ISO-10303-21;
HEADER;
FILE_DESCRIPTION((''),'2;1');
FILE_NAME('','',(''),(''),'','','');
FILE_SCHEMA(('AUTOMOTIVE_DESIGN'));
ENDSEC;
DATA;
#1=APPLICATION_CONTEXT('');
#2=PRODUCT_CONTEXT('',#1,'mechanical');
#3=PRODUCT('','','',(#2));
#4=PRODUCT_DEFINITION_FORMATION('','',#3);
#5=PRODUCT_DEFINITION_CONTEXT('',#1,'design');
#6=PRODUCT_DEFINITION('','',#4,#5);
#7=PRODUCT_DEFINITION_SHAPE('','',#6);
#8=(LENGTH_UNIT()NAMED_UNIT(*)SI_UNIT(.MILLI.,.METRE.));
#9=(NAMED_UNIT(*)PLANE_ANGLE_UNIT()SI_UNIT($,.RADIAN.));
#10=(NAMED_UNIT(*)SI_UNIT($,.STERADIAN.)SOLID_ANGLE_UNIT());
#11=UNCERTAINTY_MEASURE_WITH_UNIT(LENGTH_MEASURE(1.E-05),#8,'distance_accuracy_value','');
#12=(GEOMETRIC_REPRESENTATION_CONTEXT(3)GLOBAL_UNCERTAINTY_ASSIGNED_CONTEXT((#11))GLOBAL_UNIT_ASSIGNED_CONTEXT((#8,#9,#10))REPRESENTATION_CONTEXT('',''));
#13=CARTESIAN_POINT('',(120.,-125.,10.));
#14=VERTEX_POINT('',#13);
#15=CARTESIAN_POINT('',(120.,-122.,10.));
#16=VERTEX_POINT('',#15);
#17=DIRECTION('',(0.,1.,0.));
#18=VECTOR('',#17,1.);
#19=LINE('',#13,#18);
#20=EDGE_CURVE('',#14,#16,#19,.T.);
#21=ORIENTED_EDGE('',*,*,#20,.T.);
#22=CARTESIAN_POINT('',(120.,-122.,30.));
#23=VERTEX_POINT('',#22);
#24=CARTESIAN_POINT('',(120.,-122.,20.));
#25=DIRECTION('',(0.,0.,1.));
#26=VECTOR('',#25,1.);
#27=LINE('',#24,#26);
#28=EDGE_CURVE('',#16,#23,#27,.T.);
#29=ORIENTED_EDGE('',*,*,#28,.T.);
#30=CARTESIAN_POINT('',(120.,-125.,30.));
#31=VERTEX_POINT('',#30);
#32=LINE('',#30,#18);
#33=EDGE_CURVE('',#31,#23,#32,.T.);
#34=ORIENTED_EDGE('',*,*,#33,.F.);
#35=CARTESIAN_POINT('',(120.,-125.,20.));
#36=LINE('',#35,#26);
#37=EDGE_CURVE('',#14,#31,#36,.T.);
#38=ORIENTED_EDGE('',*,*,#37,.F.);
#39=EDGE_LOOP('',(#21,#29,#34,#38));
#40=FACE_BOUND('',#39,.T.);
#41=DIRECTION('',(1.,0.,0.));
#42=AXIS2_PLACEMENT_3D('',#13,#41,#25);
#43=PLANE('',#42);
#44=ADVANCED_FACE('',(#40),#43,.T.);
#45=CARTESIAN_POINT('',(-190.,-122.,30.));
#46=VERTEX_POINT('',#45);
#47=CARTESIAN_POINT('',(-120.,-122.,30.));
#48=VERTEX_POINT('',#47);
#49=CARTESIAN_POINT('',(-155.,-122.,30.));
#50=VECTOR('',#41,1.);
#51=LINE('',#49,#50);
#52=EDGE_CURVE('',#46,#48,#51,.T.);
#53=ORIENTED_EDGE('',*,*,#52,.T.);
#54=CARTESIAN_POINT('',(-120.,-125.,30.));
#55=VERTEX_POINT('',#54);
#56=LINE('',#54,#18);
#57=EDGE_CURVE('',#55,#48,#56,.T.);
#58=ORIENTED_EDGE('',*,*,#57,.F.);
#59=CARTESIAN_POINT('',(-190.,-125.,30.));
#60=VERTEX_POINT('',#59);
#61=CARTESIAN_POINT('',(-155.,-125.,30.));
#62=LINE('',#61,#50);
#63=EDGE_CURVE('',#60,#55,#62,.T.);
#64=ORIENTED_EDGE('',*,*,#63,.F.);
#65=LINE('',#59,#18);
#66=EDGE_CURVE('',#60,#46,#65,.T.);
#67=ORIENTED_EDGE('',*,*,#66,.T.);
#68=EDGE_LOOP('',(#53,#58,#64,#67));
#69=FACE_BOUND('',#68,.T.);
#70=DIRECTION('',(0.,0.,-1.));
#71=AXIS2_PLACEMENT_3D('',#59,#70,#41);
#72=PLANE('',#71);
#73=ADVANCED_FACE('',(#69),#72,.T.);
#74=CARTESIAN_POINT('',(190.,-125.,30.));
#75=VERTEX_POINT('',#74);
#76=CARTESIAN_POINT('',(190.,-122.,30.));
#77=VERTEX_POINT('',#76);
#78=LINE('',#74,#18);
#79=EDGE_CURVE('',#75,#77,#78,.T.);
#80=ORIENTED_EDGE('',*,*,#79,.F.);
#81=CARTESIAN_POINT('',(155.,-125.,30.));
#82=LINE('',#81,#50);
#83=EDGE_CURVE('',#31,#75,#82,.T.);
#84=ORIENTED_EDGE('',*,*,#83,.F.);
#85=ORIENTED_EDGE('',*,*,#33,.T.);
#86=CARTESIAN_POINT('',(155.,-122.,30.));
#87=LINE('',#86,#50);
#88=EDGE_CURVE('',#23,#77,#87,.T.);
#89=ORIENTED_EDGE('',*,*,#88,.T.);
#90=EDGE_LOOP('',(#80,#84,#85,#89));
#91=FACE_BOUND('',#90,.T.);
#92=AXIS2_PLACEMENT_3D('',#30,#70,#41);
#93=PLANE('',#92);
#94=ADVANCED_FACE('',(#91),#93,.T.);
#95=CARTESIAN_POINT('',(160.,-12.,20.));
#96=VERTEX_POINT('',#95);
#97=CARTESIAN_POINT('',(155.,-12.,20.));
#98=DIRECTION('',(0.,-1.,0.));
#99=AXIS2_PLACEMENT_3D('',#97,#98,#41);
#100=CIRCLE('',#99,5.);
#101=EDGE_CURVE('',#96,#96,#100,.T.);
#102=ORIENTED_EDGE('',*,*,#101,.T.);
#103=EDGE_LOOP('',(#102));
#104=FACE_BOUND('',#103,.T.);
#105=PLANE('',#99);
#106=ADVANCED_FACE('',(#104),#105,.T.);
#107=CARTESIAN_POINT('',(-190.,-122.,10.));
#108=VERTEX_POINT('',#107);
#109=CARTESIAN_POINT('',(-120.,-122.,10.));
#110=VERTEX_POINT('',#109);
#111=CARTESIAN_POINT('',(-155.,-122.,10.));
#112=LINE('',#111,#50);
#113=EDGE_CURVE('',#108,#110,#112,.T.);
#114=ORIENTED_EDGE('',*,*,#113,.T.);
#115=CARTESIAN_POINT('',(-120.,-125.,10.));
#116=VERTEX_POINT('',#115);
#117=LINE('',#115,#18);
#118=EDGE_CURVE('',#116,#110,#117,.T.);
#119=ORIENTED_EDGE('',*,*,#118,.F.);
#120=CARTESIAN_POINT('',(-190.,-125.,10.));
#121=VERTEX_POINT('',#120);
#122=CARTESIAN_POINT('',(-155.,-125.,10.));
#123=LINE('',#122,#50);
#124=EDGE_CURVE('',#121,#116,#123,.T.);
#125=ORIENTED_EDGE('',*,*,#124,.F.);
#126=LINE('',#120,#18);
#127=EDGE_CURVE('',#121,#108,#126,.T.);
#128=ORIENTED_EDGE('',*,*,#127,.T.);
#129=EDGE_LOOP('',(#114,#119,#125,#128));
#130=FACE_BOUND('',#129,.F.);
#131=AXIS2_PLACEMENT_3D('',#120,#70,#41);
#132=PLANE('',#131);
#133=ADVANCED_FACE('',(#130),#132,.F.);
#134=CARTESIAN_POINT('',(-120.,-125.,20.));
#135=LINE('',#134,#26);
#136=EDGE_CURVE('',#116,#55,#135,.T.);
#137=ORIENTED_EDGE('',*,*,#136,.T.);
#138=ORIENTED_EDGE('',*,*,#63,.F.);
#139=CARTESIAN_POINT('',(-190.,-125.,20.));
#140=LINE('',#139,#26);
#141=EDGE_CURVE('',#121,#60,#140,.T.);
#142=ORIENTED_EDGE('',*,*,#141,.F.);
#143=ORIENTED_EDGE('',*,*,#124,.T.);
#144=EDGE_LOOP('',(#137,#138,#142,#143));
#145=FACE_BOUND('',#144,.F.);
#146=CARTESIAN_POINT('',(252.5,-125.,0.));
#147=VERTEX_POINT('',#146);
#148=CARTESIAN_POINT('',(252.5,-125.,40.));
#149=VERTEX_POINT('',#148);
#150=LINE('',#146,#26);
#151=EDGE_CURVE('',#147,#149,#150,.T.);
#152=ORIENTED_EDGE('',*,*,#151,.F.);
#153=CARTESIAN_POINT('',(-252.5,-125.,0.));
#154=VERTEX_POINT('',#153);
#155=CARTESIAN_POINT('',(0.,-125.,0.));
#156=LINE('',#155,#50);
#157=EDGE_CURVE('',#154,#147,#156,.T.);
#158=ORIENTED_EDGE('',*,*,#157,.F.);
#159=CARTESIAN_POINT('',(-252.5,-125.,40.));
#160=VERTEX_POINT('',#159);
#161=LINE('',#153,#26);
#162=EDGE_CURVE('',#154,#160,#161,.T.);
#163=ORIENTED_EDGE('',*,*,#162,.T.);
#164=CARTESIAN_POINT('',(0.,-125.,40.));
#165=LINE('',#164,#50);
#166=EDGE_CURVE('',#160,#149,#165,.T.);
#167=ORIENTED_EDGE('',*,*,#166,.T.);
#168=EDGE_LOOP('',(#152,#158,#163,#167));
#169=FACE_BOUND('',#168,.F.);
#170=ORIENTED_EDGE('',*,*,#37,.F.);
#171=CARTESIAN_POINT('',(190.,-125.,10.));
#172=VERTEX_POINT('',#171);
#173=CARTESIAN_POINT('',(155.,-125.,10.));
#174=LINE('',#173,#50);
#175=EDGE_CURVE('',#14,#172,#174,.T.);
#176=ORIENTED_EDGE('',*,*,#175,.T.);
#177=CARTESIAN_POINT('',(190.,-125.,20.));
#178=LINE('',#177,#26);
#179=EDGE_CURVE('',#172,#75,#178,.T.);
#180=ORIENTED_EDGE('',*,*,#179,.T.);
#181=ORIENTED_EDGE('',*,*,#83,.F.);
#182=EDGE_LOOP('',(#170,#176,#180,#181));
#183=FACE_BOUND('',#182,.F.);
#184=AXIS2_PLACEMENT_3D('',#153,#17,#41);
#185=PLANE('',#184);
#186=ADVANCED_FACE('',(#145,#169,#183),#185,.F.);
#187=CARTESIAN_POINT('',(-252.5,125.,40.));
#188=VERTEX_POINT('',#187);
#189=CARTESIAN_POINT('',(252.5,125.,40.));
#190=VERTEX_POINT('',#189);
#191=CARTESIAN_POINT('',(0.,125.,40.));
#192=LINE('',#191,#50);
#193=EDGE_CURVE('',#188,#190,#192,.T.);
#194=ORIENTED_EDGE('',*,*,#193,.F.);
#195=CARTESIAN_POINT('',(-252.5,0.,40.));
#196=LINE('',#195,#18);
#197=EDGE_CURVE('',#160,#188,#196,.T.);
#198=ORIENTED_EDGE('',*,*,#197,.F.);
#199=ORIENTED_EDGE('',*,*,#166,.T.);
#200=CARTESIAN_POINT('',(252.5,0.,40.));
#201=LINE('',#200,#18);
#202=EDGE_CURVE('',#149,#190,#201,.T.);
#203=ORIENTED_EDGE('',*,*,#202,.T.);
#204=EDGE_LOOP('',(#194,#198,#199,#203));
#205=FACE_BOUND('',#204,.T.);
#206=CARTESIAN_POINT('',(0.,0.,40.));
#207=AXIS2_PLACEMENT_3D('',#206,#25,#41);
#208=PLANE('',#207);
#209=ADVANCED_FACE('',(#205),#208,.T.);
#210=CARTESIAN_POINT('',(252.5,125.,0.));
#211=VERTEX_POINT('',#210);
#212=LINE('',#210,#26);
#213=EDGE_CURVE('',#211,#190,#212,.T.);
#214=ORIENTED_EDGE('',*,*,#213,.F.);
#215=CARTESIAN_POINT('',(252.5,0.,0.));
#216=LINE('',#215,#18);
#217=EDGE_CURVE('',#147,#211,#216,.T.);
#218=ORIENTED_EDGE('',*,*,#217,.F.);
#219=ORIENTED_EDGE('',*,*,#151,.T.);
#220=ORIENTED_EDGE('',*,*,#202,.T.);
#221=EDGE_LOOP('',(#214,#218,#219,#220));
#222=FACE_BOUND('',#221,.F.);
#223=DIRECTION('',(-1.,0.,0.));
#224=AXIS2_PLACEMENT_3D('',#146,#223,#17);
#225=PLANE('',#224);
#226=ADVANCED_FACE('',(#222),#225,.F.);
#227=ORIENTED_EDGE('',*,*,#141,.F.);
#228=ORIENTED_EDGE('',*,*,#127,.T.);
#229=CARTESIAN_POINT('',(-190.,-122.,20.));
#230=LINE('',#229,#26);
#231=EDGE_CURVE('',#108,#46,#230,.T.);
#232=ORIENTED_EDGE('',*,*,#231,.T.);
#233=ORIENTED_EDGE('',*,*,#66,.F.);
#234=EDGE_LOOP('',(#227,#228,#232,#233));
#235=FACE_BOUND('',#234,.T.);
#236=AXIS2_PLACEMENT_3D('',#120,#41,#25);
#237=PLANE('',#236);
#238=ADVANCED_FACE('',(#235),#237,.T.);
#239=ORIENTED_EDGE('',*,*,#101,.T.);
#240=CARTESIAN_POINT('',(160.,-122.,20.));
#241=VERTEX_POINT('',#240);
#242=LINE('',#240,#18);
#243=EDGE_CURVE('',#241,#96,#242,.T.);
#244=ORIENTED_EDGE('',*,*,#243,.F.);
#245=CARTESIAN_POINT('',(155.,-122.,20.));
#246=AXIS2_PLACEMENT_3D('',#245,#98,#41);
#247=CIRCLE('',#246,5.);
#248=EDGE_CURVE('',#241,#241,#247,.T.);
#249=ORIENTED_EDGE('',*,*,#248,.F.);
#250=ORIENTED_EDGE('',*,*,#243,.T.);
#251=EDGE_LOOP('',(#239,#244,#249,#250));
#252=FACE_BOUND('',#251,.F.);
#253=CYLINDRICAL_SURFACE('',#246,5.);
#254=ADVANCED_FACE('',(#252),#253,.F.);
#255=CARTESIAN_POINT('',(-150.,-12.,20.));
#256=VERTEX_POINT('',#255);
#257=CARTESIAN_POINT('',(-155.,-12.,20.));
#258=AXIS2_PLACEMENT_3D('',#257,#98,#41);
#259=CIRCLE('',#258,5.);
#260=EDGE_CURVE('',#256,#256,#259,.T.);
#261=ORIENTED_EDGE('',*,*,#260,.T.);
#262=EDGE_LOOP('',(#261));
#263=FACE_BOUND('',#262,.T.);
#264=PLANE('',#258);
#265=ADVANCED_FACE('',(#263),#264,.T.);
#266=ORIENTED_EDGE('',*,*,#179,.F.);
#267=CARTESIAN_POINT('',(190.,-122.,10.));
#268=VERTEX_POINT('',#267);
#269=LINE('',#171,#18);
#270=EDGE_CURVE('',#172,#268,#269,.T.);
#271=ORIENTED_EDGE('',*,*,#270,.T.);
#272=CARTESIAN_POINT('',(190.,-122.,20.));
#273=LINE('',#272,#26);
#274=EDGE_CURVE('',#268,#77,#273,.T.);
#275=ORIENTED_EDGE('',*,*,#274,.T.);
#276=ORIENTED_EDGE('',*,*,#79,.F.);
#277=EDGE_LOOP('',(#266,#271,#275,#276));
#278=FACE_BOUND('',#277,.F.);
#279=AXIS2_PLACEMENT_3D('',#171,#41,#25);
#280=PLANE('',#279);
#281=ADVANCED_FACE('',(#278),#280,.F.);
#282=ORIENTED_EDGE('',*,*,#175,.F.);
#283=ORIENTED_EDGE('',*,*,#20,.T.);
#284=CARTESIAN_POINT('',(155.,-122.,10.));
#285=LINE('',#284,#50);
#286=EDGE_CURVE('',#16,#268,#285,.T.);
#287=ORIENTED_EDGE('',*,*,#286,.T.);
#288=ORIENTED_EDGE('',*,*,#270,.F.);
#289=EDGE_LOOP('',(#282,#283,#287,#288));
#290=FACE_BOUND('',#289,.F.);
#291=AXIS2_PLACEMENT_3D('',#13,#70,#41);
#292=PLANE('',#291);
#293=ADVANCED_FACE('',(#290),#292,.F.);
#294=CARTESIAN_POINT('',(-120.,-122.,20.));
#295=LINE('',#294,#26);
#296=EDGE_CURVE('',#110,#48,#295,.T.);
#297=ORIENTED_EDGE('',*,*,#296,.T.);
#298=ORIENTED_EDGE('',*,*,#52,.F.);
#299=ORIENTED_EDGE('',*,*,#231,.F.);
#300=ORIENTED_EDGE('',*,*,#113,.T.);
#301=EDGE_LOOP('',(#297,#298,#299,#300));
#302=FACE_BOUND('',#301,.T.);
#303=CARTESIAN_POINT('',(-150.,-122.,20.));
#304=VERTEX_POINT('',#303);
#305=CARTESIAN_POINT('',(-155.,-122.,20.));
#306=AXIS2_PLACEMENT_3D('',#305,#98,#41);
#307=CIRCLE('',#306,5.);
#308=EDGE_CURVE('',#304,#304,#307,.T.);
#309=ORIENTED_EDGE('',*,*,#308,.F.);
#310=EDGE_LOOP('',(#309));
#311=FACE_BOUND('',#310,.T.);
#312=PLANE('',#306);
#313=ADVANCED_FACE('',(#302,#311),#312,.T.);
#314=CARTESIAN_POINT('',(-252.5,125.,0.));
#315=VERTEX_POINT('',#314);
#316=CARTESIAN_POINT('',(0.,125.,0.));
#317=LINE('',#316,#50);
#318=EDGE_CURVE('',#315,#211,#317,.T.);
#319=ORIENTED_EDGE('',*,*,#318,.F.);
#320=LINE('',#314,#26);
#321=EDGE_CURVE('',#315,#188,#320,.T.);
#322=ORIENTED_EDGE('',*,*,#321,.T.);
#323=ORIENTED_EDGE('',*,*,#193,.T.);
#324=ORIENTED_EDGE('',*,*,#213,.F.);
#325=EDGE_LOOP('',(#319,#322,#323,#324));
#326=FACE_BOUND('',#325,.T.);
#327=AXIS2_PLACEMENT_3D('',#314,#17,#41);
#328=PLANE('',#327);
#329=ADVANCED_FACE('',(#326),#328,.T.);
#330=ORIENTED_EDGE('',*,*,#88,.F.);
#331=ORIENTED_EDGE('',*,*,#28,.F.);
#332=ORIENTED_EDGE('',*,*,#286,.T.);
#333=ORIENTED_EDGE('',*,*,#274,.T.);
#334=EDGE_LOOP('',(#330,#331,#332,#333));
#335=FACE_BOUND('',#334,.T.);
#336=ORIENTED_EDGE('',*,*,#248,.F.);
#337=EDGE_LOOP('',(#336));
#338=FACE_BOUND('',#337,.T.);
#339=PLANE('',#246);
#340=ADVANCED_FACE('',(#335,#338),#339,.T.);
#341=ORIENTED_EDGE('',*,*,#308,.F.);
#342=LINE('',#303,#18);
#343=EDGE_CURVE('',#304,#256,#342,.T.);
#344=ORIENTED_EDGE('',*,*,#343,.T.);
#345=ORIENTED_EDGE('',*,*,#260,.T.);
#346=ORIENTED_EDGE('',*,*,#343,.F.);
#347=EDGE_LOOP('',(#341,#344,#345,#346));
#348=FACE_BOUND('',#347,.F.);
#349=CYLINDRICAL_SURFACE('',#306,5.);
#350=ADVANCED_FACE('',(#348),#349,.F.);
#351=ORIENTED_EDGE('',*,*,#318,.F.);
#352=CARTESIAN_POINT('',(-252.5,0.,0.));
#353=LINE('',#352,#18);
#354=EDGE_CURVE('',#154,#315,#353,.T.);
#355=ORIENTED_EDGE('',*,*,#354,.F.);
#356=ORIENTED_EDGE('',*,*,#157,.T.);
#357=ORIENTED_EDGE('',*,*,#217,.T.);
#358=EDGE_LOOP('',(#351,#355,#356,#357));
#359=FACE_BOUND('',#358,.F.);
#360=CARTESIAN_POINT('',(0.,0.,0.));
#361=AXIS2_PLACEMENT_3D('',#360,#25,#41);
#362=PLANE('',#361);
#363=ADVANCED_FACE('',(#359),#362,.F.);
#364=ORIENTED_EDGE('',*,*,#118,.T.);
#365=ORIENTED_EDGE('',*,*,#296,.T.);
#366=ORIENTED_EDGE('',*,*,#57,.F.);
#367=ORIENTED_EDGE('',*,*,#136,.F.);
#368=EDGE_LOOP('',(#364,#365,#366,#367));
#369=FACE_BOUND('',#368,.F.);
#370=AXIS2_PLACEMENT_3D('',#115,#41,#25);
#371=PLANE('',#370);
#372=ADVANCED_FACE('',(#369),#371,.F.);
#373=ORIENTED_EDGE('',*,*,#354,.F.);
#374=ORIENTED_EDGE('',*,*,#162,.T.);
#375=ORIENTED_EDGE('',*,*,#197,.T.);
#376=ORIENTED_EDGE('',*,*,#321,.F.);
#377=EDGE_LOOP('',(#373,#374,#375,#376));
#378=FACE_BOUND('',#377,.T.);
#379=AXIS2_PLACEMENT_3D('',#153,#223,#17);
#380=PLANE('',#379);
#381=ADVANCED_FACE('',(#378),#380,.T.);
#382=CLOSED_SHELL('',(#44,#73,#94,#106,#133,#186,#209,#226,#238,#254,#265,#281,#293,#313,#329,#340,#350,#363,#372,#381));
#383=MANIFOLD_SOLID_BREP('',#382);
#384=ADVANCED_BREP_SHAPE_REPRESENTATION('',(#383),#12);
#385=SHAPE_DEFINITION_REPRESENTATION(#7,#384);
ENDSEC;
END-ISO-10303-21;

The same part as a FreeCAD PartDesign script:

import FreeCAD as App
import Part
import Sketcher

V = App.Vector


def add_polygon(sketch, points):
    """Adds a closed chain of lines whose ends are joined by coincident constraints."""
    first, n = sketch.GeometryCount, len(points)
    for a, b in zip(points, points[1:] + points[:1]):
        sketch.addGeometry(Part.LineSegment(App.Vector(*a, 0), App.Vector(*b, 0)), False)
    for i in range(n):
        sketch.addConstraint(Sketcher.Constraint("Coincident", first + i, 2, first + (i + 1) % n, 1))

doc = App.newDocument("Part")
params = doc.addObject("Spreadsheet::Sheet", "Params")
for row, (alias, value) in enumerate([
    ("sketch1_width", "505 mm"),
    ("sketch1_height", "250 mm"),
    ("pad1_length", "40 mm"),
    ("sketch2_width", "70 mm"),
    ("sketch2_height", "20 mm"),
    ("pocket1_length", "3 mm"),
    ("sketch3_diameter", "10 mm"),
    ("pocket2_length", "110 mm"),
], start=1):
    params.set(f"A{row}", alias)
    params.set(f"B{row}", "=" + value)
    params.setAlias(f"B{row}", alias)

body = doc.addObject("PartDesign::Body", "Body")

# Sketch on XY plane
sketch1 = doc.addObject("Sketcher::SketchObject", "Sketch")
body.addObject(sketch1)
sketch1.AttachmentSupport = (doc.XY_Plane, [""])
sketch1.MapMode = "FlatFace"
add_polygon(sketch1, [(-252.5, 125), (-252.5, -125), (252.5, -125), (252.5, 125)])  # lines 0-3
sketch1.addConstraint([
    Sketcher.Constraint("Vertical", 0),
    Sketcher.Constraint("Horizontal", 1),
    Sketcher.Constraint("Vertical", 2),
    Sketcher.Constraint("Horizontal", 3),
    Sketcher.Constraint("Symmetric", 0, 2, 2, 2, -1, 1),
    Sketcher.Constraint("DistanceX", 1, 1, 1, 2, 505.0),
    Sketcher.Constraint("DistanceY", 0, 2, 0, 1, 250.0),
])
sketch1.setExpression("Constraints[9]", "Params.sketch1_width")
sketch1.setExpression("Constraints[10]", "Params.sketch1_height")
pad1 = doc.addObject("PartDesign::Pad", "Pad")
body.addObject(pad1)
pad1.Profile = sketch1
pad1.setExpression("Length", "Params.pad1_length")

# Sketch on XZ plane
sketch2 = doc.addObject("Sketcher::SketchObject", "Sketch001")
body.addObject(sketch2)
sketch2.AttachmentSupport = (doc.XZ_Plane, [""])
sketch2.MapMode = "FlatFace"
sketch2.AttachmentOffset = App.Placement(V(0, 0, 125), App.Rotation())
add_polygon(sketch2, [(120, 30), (120, 10), (190, 10), (190, 30)])  # lines 0-3
add_polygon(sketch2, [(-190, 30), (-190, 10), (-120, 10), (-120, 30)])  # lines 4-7
sketch2.addConstraint([
    Sketcher.Constraint("Vertical", 0),
    Sketcher.Constraint("Horizontal", 1),
    Sketcher.Constraint("Vertical", 2),
    Sketcher.Constraint("Horizontal", 3),
    Sketcher.Constraint("Vertical", 4),
    Sketcher.Constraint("Horizontal", 5),
    Sketcher.Constraint("Vertical", 6),
    Sketcher.Constraint("Horizontal", 7),
    Sketcher.Constraint("Symmetric", 1, 2, 4, 2, -2),
    Sketcher.Constraint("Symmetric", 3, 2, 6, 2, -2),
    Sketcher.Constraint("DistanceX", 1, 1, 1, 2, 70.0),
    Sketcher.Constraint("DistanceY", 0, 2, 0, 1, 20.0),
    Sketcher.Constraint("DistanceX", -1, 1, 0, 2, 120.0),
    Sketcher.Constraint("DistanceY", -1, 1, 0, 2, 10.0),
])
sketch2.setExpression("Constraints[18]", "Params.sketch2_width")
sketch2.setExpression("Constraints[19]", "Params.sketch2_height")
pocket1 = doc.addObject("PartDesign::Pocket", "Pocket")
body.addObject(pocket1)
pocket1.Profile = sketch2
pocket1.setExpression("Length", "Params.pocket1_length")

# Sketch on XZ plane
sketch3 = doc.addObject("Sketcher::SketchObject", "Sketch002")
body.addObject(sketch3)
sketch3.AttachmentSupport = (doc.XZ_Plane, [""])
sketch3.MapMode = "FlatFace"
sketch3.AttachmentOffset = App.Placement(V(0, 0, 122), App.Rotation())
sketch3.addGeometry([
    Part.Circle(V(-155, 20, 0), V(0, 0, 1), 5),
    Part.Circle(V(155, 20, 0), V(0, 0, 1), 5),
], False)
sketch3.addConstraint([
    Sketcher.Constraint("Equal", 0, 1),
    Sketcher.Constraint("Symmetric", 0, 3, 1, 3, -2),
    Sketcher.Constraint("Diameter", 0, 10.0),
    Sketcher.Constraint("DistanceX", 0, 3, -1, 1, 155.0),
    Sketcher.Constraint("DistanceY", -1, 1, 0, 3, 20.0),
])
sketch3.setExpression("Constraints[2]", "Params.sketch3_diameter")
pocket2 = doc.addObject("PartDesign::Pocket", "Pocket001")
body.addObject(pocket2)
pocket2.Profile = sketch3
pocket2.setExpression("Length", "Params.pocket2_length")

doc.recompute()
